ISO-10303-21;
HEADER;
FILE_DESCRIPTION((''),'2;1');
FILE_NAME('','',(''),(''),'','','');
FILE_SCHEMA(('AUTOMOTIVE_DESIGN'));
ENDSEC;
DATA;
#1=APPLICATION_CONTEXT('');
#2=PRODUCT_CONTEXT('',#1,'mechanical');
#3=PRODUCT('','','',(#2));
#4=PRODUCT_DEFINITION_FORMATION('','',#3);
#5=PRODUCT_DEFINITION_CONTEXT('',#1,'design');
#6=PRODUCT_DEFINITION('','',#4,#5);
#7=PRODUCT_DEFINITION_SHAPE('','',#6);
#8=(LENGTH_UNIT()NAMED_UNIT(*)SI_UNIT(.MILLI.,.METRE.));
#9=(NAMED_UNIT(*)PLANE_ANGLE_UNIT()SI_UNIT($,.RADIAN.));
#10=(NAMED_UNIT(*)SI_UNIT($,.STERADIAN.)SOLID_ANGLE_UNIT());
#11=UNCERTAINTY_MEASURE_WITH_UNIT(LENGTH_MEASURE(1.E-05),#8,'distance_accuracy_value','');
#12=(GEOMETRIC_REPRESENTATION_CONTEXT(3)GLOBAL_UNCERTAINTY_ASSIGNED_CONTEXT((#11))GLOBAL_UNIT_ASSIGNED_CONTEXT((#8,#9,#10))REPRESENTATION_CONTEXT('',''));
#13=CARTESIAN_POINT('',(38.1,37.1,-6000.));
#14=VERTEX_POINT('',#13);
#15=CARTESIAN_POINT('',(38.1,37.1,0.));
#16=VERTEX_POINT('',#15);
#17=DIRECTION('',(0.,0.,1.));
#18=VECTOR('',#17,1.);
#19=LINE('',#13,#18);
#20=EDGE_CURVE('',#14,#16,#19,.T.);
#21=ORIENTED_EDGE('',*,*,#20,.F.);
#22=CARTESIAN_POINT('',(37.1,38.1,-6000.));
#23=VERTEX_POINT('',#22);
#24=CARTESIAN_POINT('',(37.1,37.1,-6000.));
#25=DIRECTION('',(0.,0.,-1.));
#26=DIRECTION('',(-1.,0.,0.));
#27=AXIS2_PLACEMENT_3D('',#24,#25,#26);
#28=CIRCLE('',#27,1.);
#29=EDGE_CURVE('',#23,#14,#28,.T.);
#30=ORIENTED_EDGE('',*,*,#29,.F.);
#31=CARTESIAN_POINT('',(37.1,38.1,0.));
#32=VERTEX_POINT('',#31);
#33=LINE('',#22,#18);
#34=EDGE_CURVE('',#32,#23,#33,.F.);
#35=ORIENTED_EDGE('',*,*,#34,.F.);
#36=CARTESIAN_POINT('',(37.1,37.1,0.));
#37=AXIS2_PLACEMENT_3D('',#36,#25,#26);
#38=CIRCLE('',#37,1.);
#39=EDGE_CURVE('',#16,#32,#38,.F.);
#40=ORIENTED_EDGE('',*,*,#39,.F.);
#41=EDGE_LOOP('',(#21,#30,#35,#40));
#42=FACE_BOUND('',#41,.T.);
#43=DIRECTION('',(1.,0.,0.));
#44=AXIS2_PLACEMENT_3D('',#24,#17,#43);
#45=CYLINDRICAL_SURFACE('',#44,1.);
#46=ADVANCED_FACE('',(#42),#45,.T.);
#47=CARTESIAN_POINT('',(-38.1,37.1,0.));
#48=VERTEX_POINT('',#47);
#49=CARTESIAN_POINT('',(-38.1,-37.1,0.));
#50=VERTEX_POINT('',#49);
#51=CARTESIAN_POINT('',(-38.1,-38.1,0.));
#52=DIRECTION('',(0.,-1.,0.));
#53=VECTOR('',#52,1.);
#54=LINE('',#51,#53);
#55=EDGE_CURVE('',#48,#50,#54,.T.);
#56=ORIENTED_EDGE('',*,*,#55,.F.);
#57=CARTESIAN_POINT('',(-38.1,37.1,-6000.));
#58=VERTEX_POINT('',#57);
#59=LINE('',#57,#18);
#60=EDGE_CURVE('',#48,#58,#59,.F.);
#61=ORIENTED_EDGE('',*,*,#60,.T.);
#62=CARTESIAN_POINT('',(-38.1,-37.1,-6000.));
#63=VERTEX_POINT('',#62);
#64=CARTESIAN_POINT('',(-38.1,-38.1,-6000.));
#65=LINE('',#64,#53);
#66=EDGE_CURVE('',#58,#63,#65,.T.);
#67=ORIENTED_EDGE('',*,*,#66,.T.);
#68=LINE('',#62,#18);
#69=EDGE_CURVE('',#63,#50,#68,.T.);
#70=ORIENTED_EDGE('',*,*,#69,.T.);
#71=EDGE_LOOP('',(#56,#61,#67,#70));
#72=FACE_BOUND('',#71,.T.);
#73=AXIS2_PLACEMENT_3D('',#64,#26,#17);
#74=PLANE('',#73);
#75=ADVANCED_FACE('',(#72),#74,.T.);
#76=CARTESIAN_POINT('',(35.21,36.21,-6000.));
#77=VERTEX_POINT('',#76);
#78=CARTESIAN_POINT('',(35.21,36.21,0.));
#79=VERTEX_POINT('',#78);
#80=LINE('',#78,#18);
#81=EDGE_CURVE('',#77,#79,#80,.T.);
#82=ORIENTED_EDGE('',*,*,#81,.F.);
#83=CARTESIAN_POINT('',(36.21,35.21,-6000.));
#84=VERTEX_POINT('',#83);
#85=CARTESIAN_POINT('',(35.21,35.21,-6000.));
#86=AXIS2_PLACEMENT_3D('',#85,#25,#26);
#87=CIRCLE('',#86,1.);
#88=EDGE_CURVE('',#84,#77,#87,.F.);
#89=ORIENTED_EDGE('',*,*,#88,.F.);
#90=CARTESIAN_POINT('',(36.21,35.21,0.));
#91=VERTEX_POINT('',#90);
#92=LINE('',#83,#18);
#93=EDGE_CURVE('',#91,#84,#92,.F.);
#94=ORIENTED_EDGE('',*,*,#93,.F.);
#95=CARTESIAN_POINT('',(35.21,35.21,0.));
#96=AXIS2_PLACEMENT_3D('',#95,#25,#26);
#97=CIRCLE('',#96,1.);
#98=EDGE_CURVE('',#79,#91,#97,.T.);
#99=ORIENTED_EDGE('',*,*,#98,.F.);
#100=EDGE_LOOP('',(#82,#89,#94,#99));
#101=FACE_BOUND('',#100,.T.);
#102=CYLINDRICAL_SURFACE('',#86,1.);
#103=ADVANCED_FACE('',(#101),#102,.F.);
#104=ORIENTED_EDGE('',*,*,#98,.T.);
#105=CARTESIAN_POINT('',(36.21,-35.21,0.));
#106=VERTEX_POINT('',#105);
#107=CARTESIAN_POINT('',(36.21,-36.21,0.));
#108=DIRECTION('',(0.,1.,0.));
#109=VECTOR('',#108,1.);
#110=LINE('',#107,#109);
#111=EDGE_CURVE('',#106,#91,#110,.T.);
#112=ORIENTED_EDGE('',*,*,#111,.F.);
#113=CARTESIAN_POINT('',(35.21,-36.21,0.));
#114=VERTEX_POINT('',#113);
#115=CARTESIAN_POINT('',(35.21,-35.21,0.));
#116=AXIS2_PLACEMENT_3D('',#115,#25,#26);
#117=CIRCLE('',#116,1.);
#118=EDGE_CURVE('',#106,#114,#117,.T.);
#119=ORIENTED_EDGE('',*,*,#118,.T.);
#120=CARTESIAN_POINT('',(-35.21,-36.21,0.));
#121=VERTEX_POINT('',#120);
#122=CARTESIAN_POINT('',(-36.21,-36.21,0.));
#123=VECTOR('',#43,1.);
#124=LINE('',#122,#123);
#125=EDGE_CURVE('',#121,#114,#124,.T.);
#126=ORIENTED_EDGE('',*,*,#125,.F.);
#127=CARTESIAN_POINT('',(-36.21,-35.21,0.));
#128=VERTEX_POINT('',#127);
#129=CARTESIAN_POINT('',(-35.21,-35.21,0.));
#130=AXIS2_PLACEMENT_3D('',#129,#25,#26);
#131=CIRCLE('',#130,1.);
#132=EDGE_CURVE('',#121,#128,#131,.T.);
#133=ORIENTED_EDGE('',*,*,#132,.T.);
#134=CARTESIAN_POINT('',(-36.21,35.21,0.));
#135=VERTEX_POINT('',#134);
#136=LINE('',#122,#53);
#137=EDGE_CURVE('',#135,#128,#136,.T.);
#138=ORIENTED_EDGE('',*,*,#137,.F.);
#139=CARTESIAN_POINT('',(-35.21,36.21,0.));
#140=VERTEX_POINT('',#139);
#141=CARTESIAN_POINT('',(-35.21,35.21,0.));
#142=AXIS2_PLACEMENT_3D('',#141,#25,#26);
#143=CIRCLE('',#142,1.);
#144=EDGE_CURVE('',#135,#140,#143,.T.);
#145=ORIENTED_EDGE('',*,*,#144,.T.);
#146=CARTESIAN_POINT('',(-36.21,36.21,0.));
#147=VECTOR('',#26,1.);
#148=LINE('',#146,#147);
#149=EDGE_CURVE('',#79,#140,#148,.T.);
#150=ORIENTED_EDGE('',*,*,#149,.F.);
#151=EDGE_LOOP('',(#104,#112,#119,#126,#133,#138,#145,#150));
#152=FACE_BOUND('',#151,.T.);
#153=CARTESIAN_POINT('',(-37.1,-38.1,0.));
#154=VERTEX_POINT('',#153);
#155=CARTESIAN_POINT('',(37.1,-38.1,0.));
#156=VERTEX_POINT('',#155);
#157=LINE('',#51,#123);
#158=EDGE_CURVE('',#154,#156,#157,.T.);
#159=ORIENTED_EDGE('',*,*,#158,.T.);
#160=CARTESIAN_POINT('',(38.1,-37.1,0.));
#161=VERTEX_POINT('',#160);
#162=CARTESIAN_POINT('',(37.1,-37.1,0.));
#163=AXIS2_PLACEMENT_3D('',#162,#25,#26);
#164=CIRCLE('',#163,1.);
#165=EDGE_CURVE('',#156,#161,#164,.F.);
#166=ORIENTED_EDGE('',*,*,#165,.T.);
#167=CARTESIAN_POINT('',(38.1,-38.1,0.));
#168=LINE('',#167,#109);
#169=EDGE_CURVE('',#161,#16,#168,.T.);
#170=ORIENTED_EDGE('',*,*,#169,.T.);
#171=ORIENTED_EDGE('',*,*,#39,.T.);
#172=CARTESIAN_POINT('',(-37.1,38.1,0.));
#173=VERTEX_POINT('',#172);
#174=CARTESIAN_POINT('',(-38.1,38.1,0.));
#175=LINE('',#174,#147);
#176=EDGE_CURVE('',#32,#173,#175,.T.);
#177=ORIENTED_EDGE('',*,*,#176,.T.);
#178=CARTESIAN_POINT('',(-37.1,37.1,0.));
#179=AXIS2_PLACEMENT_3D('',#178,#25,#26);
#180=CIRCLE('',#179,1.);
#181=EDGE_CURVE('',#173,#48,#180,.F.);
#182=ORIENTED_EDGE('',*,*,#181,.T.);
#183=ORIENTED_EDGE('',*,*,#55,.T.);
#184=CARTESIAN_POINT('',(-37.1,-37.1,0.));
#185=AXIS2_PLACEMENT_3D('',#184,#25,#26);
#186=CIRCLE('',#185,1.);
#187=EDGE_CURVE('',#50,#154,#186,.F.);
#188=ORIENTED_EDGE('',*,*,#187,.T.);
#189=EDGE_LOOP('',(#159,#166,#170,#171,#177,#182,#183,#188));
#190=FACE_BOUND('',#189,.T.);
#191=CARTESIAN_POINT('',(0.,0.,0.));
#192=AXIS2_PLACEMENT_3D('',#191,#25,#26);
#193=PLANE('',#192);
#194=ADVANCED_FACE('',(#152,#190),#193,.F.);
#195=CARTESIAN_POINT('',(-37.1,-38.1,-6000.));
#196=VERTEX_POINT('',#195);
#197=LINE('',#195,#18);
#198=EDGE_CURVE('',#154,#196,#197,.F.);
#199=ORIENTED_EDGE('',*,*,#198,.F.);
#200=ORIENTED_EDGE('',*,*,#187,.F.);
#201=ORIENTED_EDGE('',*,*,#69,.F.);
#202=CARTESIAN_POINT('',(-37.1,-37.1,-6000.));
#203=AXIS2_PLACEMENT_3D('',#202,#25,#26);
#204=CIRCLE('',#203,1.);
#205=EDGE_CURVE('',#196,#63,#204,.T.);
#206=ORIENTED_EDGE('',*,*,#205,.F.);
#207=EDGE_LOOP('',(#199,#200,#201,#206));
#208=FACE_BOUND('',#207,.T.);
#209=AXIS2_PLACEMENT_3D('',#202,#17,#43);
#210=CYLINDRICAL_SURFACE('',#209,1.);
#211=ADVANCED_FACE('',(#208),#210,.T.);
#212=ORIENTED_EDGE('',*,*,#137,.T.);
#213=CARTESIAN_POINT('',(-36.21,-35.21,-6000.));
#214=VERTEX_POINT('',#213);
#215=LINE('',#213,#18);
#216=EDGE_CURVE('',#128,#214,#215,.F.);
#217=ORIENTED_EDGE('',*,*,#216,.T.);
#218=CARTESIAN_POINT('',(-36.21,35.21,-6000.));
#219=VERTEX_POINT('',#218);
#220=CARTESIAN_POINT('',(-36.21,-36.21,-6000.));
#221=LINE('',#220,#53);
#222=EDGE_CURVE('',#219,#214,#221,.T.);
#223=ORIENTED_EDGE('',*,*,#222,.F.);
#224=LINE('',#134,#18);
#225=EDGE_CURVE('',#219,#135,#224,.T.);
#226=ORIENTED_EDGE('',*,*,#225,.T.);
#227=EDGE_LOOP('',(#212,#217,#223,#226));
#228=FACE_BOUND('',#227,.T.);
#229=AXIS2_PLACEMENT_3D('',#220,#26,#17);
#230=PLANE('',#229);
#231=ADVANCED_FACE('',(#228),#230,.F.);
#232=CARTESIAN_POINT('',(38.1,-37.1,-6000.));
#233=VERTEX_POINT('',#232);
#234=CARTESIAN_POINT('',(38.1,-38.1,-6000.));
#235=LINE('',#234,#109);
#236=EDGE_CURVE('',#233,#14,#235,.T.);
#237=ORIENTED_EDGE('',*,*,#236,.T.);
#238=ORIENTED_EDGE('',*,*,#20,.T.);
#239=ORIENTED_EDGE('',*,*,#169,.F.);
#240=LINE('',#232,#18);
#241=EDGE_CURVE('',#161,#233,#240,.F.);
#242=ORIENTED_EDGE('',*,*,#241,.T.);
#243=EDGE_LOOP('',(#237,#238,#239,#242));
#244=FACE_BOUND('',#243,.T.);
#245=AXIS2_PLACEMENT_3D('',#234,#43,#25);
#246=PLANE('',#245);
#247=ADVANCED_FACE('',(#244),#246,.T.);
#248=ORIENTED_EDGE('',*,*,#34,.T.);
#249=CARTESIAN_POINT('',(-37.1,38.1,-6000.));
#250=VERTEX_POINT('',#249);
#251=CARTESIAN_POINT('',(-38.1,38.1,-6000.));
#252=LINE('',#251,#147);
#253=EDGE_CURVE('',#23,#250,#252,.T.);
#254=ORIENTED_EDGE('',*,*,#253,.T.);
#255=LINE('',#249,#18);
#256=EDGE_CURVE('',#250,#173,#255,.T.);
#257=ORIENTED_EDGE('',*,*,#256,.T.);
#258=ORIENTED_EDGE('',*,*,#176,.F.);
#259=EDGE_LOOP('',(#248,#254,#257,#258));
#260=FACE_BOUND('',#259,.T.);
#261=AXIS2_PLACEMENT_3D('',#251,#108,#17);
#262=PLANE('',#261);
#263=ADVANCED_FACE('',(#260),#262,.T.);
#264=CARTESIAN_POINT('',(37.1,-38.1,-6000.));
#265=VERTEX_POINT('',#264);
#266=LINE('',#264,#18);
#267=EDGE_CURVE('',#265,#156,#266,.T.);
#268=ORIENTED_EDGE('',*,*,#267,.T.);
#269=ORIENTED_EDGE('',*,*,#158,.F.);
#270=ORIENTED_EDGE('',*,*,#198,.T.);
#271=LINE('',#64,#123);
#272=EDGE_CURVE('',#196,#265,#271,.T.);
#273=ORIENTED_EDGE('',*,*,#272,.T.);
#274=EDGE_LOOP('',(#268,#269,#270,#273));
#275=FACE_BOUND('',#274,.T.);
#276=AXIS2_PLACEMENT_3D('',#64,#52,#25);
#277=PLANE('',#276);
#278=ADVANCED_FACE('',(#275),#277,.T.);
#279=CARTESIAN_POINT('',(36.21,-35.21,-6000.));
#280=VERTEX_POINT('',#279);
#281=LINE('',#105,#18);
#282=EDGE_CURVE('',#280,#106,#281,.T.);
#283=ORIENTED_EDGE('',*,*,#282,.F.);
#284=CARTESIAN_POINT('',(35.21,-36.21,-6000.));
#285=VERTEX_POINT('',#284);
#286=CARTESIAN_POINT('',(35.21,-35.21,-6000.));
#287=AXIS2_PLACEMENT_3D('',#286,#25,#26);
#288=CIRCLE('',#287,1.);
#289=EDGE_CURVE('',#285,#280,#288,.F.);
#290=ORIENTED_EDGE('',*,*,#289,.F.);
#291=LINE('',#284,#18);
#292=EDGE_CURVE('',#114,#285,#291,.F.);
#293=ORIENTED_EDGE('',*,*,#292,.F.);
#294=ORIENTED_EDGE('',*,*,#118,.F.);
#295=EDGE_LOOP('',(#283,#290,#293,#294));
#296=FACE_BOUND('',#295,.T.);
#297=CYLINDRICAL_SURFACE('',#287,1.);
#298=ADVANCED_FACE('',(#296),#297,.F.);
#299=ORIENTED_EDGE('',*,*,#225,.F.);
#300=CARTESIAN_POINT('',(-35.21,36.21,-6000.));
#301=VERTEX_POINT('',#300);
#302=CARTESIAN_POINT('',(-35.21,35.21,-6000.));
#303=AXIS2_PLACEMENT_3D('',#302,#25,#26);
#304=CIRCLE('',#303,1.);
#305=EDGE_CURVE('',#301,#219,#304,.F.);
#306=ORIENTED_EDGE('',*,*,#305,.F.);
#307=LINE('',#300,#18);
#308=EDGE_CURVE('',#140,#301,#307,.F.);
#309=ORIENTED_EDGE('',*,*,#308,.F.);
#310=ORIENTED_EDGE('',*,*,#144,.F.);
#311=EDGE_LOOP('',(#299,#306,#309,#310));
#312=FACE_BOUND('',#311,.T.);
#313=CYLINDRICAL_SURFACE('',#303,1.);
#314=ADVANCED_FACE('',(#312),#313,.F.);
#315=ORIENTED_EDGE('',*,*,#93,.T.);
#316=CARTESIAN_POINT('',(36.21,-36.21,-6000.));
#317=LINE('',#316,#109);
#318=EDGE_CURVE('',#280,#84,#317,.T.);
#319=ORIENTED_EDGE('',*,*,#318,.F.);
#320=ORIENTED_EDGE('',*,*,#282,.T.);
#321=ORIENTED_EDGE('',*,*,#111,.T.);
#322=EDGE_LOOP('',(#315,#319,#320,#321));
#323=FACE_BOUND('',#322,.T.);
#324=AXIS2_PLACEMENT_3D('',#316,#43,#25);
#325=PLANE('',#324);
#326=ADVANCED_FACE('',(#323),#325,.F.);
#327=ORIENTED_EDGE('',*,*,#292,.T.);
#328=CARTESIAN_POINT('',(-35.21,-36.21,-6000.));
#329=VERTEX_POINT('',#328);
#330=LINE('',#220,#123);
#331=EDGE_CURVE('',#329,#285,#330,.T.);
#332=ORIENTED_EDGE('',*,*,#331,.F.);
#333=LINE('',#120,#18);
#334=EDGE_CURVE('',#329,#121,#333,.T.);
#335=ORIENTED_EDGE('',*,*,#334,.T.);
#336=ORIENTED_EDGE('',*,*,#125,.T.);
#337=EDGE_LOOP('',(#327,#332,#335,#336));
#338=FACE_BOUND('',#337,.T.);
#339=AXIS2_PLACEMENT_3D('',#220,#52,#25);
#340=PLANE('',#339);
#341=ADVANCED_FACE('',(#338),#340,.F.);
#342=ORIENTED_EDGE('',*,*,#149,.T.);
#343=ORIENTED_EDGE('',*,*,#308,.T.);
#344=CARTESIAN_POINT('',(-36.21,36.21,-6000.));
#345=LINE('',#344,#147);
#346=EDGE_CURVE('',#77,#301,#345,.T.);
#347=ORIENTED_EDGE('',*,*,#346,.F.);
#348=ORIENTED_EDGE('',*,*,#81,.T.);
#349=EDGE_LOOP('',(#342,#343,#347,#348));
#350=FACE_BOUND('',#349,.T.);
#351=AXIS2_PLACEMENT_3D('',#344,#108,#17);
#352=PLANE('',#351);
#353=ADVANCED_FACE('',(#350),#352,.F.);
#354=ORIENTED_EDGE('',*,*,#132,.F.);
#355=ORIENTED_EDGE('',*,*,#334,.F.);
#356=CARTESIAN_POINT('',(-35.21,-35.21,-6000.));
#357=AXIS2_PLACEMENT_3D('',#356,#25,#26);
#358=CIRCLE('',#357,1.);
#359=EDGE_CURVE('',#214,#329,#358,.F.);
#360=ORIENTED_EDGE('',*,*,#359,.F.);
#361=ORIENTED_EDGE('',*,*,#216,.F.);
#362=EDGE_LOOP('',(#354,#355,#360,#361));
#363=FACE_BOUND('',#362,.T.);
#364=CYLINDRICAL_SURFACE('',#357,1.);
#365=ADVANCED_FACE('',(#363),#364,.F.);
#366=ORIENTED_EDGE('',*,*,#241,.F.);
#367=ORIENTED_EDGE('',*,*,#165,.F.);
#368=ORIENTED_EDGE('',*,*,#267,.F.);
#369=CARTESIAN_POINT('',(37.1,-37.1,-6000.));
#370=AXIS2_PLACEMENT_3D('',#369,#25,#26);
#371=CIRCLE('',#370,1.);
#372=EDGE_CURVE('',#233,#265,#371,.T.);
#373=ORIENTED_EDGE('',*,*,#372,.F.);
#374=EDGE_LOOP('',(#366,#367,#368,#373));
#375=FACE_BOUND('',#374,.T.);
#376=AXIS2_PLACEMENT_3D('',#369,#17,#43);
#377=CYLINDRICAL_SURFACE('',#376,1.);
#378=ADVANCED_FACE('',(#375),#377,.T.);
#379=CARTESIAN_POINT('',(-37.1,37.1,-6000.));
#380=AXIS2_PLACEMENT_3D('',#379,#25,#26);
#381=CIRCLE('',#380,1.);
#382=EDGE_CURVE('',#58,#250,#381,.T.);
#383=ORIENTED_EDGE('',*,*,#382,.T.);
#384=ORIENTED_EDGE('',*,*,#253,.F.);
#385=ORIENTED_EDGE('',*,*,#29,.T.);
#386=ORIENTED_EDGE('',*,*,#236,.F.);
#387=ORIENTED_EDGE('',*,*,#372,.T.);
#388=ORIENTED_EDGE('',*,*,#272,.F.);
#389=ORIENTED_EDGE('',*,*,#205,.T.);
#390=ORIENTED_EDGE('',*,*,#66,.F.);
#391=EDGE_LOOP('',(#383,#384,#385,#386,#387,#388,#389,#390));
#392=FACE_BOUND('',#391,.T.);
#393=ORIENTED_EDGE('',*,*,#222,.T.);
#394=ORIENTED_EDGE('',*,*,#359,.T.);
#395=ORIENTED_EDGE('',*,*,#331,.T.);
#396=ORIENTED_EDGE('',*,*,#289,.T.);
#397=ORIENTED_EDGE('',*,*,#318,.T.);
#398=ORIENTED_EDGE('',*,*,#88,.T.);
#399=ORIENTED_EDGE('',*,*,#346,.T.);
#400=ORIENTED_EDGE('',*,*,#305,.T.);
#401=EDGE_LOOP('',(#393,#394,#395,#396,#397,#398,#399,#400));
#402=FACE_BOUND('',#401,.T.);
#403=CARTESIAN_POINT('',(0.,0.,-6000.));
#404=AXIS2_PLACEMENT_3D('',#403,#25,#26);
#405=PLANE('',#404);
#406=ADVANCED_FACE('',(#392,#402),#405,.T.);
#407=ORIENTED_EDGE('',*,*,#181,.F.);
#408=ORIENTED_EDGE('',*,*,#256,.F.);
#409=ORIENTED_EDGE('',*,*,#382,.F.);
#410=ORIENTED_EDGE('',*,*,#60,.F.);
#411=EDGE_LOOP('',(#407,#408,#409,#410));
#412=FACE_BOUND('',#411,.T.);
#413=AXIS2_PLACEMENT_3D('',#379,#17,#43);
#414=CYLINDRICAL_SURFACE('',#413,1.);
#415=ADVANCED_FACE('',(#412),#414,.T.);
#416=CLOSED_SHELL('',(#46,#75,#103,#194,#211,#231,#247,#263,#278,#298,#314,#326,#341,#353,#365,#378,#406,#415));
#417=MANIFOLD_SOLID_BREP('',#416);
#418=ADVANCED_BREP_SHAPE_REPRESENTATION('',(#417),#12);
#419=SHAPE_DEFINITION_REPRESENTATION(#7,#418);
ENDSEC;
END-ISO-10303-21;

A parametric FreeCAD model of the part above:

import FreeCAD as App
import Part
import Sketcher
from FreeCAD import Vector


def edges_at(feature, points):
    """Names of the edges that pass closest to the given points."""
    edges = feature.Shape.Edges
    near = lambda p: min(range(len(edges)), key=lambda i: edges[i].distToShape(Part.Vertex(*p))[0])
    return sorted({f"Edge{near(p) + 1}" for p in points})


def add_polygon(sketch, points):
    """Adds a closed chain of lines whose ends are joined by coincident constraints."""
    first, n = sketch.GeometryCount, len(points)
    for a, b in zip(points, points[1:] + points[:1]):
        sketch.addGeometry(Part.LineSegment(App.Vector(*a, 0), App.Vector(*b, 0)), False)
    for i in range(n):
        sketch.addConstraint(Sketcher.Constraint("Coincident", first + i, 2, first + (i + 1) % n, 1))

doc = App.newDocument("Part")
params = doc.addObject("Spreadsheet::Sheet", "Params")
for row, (alias, value) in enumerate([
    ("sketch1_width", "76.2 mm"),
    ("sketch1_width2", "72.42 mm"),
    ("pad1_length", "6000 mm"),
    ("fillet_radius", "1 mm"),
], start=1):
    params.set(f"A{row}", alias)
    params.set(f"B{row}", "=" + value)
    params.setAlias(f"B{row}", alias)

body = doc.addObject("PartDesign::Body", "Body")

# Sketch on XY plane
sketch1 = body.newObject("Sketcher::SketchObject", "Sketch")
sketch1.AttachmentSupport = (doc.getObject("XY_Plane"), [""])
sketch1.MapMode = "FlatFace"
add_polygon(sketch1, [(-38, 38), (-38, -38), (38, -38), (38, 38)])  # lines 0-3
add_polygon(sketch1, [(36, -36), (-36, -36), (-36, 36), (36, 36)])  # lines 4-7
sketch1.addConstraint(Sketcher.Constraint("Vertical", 0))
sketch1.addConstraint(Sketcher.Constraint("Horizontal", 1))
sketch1.addConstraint(Sketcher.Constraint("Vertical", 2))
sketch1.addConstraint(Sketcher.Constraint("Horizontal", 3))
sketch1.addConstraint(Sketcher.Constraint("Horizontal", 4))
sketch1.addConstraint(Sketcher.Constraint("Vertical", 5))
sketch1.addConstraint(Sketcher.Constraint("Horizontal", 6))
sketch1.addConstraint(Sketcher.Constraint("Vertical", 7))
sketch1.addConstraint(Sketcher.Constraint("Symmetric", 0, 2, 2, 2, -1, 1))
sketch1.addConstraint(Sketcher.Constraint("Symmetric", 4, 2, 6, 2, -1, 1))
sketch1.addConstraint(Sketcher.Constraint("Equal", 3, 0))
sketch1.addConstraint(Sketcher.Constraint("Equal", 6, 5))
sketch1.addConstraint(Sketcher.Constraint("DistanceX", 1, 1, 1, 2, 76.2))
sketch1.addConstraint(Sketcher.Constraint("DistanceX", 4, 2, 4, 1, 72.42))
sketch1.setExpression("Constraints[20]", "Params.sketch1_width")
sketch1.setExpression("Constraints[21]", "Params.sketch1_width2")
pad1 = body.newObject("PartDesign::Pad", "Pad")
pad1.Profile = sketch1
pad1.setExpression("Length", "Params.pad1_length")
pad1.Reversed = True
doc.recompute()

fillet = body.newObject("PartDesign::Fillet", "Fillet")
fillet.Base = (pad1, edges_at(pad1, [
    (36.21, -36.21, -3000),
    (-36.21, -36.21, -3000),
    (-36.21, 36.21, -3000),
    (36.21, 36.21, -3000),
    (38.1, -38.1, -3000),
    (-38.1, -38.1, -3000),
    (-38.1, 38.1, -3000),
    (38.1, 38.1, -3000),
]))
fillet.setExpression("Radius", "Params.fillet_radius")

doc.recompute()
